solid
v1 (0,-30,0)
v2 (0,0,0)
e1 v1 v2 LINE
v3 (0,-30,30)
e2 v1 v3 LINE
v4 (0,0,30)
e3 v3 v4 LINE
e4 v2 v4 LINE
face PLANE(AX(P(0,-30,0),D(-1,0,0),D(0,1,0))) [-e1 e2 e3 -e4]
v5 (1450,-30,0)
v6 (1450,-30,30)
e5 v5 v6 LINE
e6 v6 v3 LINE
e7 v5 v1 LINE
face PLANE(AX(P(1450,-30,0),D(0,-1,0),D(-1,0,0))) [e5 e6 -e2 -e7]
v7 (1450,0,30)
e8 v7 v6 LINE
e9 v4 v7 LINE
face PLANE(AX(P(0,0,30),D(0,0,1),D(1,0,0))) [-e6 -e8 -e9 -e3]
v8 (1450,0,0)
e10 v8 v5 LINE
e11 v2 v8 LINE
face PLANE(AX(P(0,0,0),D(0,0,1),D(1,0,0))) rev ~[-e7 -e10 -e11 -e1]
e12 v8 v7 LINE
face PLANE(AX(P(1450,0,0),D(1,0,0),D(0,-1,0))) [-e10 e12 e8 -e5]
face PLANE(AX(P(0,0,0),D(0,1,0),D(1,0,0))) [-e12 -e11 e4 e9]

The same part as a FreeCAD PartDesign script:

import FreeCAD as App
import Part
import Sketcher

V = App.Vector
Q = App.Units.Quantity

doc = App.newDocument("Part")
params = doc.addObject("Spreadsheet::Sheet", "Params")
for row, (alias, value) in enumerate([
    ("sketch1_width", "1450 mm"),
    ("sketch1_height", "30 mm"),
    ("pad1_length", "30 mm"),
], start=1):
    params.set(f"A{row}", alias)
    params.set(f"B{row}", "=" + value)
    params.setAlias(f"B{row}", alias)

body = doc.addObject("PartDesign::Body", "Body")

# Sketch on XY plane
sketch1 = doc.addObject("Sketcher::SketchObject", "Sketch")
body.addObject(sketch1)
sketch1.AttachmentSupport = (doc.XY_Plane, [""])
sketch1.MapMode = "FlatFace"
sketch1.addGeometry(Part.LineSegment(V(1450, 0, 0), V(0, 0, 0)), False)
sketch1.addGeometry(Part.LineSegment(V(0, 0, 0), V(0, -30, 0)), False)
sketch1.addGeometry(Part.LineSegment(V(0, -30, 0), V(1450, -30, 0)), False)
sketch1.addGeometry(Part.LineSegment(V(1450, -30, 0), V(1450, 0, 0)), False)
sketch1.addConstraint(Sketcher.Constraint("Coincident", 0, 2, 1, 1))
sketch1.addConstraint(Sketcher.Constraint("Coincident", 1, 2, 2, 1))
sketch1.addConstraint(Sketcher.Constraint("Coincident", 2, 2, 3, 1))
sketch1.addConstraint(Sketcher.Constraint("Coincident", 3, 2, 0, 1))
sketch1.addConstraint(Sketcher.Constraint("Horizontal", 0))
sketch1.addConstraint(Sketcher.Constraint("Vertical", 1))
sketch1.addConstraint(Sketcher.Constraint("Horizontal", 2))
sketch1.addConstraint(Sketcher.Constraint("Vertical", 3))
sketch1.addConstraint(Sketcher.Constraint("Coincident", 0, 2, -1, 1))
sketch1.addConstraint(Sketcher.Constraint("DistanceX", 0, 2, 0, 1, Q("1450 mm")))
sketch1.addConstraint(Sketcher.Constraint("DistanceY", 1, 2, 1, 1, Q("30 mm")))
sketch1.setExpression("Constraints[9]", "Params.sketch1_width")
sketch1.setExpression("Constraints[10]", "Params.sketch1_height")
pad1 = doc.addObject("PartDesign::Pad", "Pad")
body.addObject(pad1)
pad1.Profile = sketch1
pad1.setExpression("Length", "Params.pad1_length")

doc.recompute()
